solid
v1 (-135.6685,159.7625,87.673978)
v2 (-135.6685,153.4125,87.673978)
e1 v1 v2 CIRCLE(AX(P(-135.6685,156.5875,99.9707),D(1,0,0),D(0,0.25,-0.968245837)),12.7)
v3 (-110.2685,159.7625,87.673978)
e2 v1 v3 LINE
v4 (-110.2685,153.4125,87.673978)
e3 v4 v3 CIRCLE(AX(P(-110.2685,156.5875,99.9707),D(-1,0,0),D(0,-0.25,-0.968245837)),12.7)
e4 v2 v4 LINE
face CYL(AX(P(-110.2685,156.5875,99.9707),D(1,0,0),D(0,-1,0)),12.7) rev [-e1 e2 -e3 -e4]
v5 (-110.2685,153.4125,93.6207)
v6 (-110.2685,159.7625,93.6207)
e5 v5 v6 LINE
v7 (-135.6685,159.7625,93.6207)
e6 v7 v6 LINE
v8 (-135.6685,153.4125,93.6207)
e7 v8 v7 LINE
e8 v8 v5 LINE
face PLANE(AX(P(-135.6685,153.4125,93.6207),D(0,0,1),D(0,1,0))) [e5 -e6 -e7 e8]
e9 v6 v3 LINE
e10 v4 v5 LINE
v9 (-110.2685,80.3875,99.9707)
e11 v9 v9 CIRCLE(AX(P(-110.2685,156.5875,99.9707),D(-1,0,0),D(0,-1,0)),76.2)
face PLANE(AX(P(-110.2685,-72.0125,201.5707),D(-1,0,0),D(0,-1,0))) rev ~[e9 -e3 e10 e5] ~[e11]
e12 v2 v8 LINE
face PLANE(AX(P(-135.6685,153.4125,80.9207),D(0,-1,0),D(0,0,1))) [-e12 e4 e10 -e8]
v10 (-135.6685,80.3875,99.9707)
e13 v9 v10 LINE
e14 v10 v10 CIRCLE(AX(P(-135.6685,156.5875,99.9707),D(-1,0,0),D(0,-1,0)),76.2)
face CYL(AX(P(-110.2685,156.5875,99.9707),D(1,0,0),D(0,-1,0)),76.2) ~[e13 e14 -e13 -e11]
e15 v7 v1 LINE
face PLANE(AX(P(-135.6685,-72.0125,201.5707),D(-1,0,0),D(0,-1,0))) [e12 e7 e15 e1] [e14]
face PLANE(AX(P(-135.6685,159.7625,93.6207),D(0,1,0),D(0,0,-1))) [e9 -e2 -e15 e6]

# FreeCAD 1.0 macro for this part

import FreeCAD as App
import Part
import Sketcher
Q = App.Units.Quantity

doc = App.newDocument("Part")
body = doc.addObject("PartDesign::Body", "Body")

sketch1 = body.newObject("Sketcher::SketchObject", "Sketch")
sketch1.AttachmentSupport = (doc.getObject("YZ_Plane"), [""])
sketch1.MapMode = "FlatFace"
sketch1.AttachmentOffset = App.Placement(App.Vector(0, 0, -110.2685), App.Rotation())
sketch1.addGeometry([
    Part.Circle(App.Vector(157, 100, 0), App.Vector(0, 0, 1), 76),
    Part.Circle(App.Vector(157, 100, 0), App.Vector(0, 0, 1), 13),
], False)
sketch1.addConstraint([
    Sketcher.Constraint("Coincident", 1, 3, 0, 3),
    Sketcher.Constraint("Diameter", 0, Q("6 in")),
    Sketcher.Constraint("Diameter", 1, Q("1 in")),
    Sketcher.Constraint("DistanceX", -1, 1, 0, 3, Q("156.5875 mm")),
    Sketcher.Constraint("DistanceY", -1, 1, 0, 3, Q("99.9707 mm")),
])
pad1 = body.newObject("PartDesign::Pad", "Pad")
pad1.Profile = sketch1
pad1.Length = Q("1 in")
pad1.Reversed = True

sketch2 = body.newObject("Sketcher::SketchObject", "Sketch001")
sketch2.AttachmentSupport = (doc.getObject("YZ_Plane"), [""])
sketch2.MapMode = "FlatFace"
sketch2.AttachmentOffset = App.Placement(App.Vector(0, 0, -135.6685), App.Rotation())
sketch2.addGeometry([
    Part.LineSegment(App.Vector(153, 81, 0), App.Vector(153, 94, 0)),
    Part.LineSegment(App.Vector(153, 94, 0), App.Vector(160, 94, 0)),
    Part.LineSegment(App.Vector(160, 94, 0), App.Vector(160, 81, 0)),
    Part.LineSegment(App.Vector(160, 81, 0), App.Vector(153, 81, 0)),
], False)
sketch2.addConstraint([
    Sketcher.Constraint("Coincident", 0, 2, 1, 1),
    Sketcher.Constraint("Coincident", 1, 2, 2, 1),
    Sketcher.Constraint("Coincident", 2, 2, 3, 1),
    Sketcher.Constraint("Coincident", 3, 2, 0, 1),
    Sketcher.Constraint("Vertical", 0),
    Sketcher.Constraint("Horizontal", 1),
    Sketcher.Constraint("Vertical", 2),
    Sketcher.Constraint("Horizontal", 3),
    Sketcher.Constraint("DistanceY", 0, 1, 0, 2, Q("0.5 in")),
    Sketcher.Constraint("DistanceX", 1, 1, 1, 2, Q("0.25 in")),
    Sketcher.Constraint("DistanceX", -1, 1, 0, 2, Q("153.4125 mm")),
    Sketcher.Constraint("DistanceY", -1, 1, 0, 2, Q("93.6207 mm")),
])
pad2 = body.newObject("PartDesign::Pad", "Pad001")
pad2.Profile = sketch2
pad2.Length = Q("1 in")

doc.recompute()
